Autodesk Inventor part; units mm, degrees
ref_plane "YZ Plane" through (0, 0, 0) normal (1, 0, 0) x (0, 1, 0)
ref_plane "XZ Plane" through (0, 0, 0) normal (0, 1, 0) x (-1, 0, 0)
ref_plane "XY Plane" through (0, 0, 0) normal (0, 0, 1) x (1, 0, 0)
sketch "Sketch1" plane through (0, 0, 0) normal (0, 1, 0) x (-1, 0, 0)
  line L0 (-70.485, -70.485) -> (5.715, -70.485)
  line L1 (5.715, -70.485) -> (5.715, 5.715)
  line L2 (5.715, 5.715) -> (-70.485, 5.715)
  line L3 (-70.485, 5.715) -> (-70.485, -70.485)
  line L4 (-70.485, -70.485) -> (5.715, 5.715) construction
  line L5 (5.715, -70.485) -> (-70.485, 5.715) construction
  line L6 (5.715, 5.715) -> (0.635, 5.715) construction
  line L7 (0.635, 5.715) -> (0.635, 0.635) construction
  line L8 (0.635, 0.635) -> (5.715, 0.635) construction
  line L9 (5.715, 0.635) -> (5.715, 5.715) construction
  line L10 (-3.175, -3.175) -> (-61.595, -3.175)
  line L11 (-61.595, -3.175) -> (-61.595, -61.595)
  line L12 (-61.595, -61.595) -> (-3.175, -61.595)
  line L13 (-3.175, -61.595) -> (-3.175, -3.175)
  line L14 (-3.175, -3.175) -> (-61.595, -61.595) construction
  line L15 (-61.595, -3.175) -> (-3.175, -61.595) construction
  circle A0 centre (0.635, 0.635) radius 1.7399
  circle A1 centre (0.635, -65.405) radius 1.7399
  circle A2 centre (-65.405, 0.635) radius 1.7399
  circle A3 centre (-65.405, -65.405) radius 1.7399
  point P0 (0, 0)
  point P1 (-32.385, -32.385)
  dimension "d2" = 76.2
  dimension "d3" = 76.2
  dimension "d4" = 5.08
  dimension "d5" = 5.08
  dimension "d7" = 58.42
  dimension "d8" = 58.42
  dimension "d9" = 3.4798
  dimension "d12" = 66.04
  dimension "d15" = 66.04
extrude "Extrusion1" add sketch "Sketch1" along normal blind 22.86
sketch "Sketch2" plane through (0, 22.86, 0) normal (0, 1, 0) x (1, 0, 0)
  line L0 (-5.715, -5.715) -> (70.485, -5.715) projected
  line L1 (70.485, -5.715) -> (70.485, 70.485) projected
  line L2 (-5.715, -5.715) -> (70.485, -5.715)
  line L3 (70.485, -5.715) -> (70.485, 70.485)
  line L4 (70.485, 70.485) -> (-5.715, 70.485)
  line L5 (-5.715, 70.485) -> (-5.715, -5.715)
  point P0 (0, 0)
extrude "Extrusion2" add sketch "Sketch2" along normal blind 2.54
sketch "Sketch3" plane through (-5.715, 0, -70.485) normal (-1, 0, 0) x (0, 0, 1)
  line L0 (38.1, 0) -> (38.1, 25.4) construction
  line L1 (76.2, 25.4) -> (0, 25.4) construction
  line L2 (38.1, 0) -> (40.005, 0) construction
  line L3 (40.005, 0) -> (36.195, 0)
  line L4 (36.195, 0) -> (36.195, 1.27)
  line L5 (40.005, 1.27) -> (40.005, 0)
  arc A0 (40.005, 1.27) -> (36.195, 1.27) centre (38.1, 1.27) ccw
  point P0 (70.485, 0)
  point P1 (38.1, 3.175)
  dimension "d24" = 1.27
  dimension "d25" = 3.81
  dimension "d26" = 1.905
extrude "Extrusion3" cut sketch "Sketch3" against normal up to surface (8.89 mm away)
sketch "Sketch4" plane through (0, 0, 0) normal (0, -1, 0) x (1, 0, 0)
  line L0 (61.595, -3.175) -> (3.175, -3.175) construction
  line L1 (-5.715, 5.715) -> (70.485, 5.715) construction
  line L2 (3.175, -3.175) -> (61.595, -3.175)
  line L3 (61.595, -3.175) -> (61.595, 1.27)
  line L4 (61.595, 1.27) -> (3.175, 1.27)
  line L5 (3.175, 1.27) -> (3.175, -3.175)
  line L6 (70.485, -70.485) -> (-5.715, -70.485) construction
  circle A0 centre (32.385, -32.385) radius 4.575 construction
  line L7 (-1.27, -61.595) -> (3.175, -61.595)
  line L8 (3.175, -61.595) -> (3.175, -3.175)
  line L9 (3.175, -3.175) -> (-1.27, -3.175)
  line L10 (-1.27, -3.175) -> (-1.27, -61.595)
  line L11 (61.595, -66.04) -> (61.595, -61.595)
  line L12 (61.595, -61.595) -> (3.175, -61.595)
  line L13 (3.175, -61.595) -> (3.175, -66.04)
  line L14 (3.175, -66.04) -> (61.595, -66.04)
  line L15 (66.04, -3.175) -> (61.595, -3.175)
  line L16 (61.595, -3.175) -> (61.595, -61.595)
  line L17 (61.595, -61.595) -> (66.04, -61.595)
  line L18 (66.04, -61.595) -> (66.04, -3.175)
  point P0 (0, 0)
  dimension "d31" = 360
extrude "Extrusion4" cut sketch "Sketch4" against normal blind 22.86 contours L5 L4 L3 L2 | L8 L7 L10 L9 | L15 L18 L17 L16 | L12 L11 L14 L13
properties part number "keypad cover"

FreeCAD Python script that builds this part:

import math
import FreeCAD as App
import Part
import Sketcher

V = App.Vector
Q = App.Units.Quantity

doc = App.newDocument("Part")
body = doc.addObject("PartDesign::Body", "Body")

sketch1 = body.newObject("Sketcher::SketchObject", "Sketch")
sketch1.AttachmentSupport = (doc.getObject("XZ_Plane"), [""])
sketch1.MapMode = "FlatFace"
sketch1.addGeometry(Part.LineSegment(V(70.5, 5.7, 0), V(70.5, -70.5, 0)), False)
sketch1.addGeometry(Part.LineSegment(V(70.5, -70.5, 0), V(-5.7, -70.5, 0)), False)
sketch1.addGeometry(Part.LineSegment(V(-5.7, -70.5, 0), V(-5.7, 5.7, 0)), False)
sketch1.addGeometry(Part.LineSegment(V(-5.7, 5.7, 0), V(70.5, 5.7, 0)), False)
sketch1.addGeometry(Part.Circle(V(65.4, -65.4, 0), V(0, 0, 1), 1.7), False)
sketch1.addGeometry(Part.Circle(V(-0.6, -65.4, 0), V(0, 0, 1), 1.7), False)
sketch1.addGeometry(Part.Circle(V(65.4, 0.6, 0), V(0, 0, 1), 1.7), False)
sketch1.addGeometry(Part.LineSegment(V(61.6, -3.2, 0), V(3.2, -3.2, 0)), False)
sketch1.addGeometry(Part.LineSegment(V(3.2, -3.2, 0), V(3.2, -61.6, 0)), False)
sketch1.addGeometry(Part.LineSegment(V(3.2, -61.6, 0), V(61.6, -61.6, 0)), False)
sketch1.addGeometry(Part.LineSegment(V(61.6, -61.6, 0), V(61.6, -3.2, 0)), False)
sketch1.addGeometry(Part.Circle(V(-0.6, 0.6, 0), V(0, 0, 1), 1.7), False)
sketch1.addConstraint(Sketcher.Constraint("Coincident", 0, 2, 1, 1))
sketch1.addConstraint(Sketcher.Constraint("Coincident", 1, 2, 2, 1))
sketch1.addConstraint(Sketcher.Constraint("Coincident", 2, 2, 3, 1))
sketch1.addConstraint(Sketcher.Constraint("Coincident", 3, 2, 0, 1))
sketch1.addConstraint(Sketcher.Constraint("Coincident", 7, 2, 8, 1))
sketch1.addConstraint(Sketcher.Constraint("Coincident", 8, 2, 9, 1))
sketch1.addConstraint(Sketcher.Constraint("Coincident", 9, 2, 10, 1))
sketch1.addConstraint(Sketcher.Constraint("Coincident", 10, 2, 7, 1))
sketch1.addConstraint(Sketcher.Constraint("Vertical", 0))
sketch1.addConstraint(Sketcher.Constraint("Horizontal", 1))
sketch1.addConstraint(Sketcher.Constraint("Vertical", 2))
sketch1.addConstraint(Sketcher.Constraint("Horizontal", 3))
sketch1.addConstraint(Sketcher.Constraint("Horizontal", 7))
sketch1.addConstraint(Sketcher.Constraint("Vertical", 8))
sketch1.addConstraint(Sketcher.Constraint("Horizontal", 9))
sketch1.addConstraint(Sketcher.Constraint("Vertical", 10))
sketch1.addConstraint(Sketcher.Constraint("Equal", 4, 5))
sketch1.addConstraint(Sketcher.Constraint("Equal", 5, 6))
sketch1.addConstraint(Sketcher.Constraint("Equal", 6, 11))
sketch1.addConstraint(Sketcher.Constraint("Horizontal", 4, 3, 5, 3))
sketch1.addConstraint(Sketcher.Constraint("Horizontal", 6, 3, 11, 3))
sketch1.addConstraint(Sketcher.Constraint("Vertical", 4, 3, 6, 3))
sketch1.addConstraint(Sketcher.Constraint("Vertical", 5, 3, 11, 3))
sketch1.addConstraint(Sketcher.Constraint("Equal", 3, 0))
sketch1.addConstraint(Sketcher.Constraint("Equal", 9, 8))
sketch1.addConstraint(Sketcher.Constraint("DistanceX", 1, 2, 1, 1, Q("3 in")))
sketch1.addConstraint(Sketcher.Constraint("Diameter", 4, Q("0.137 in")))
sketch1.addConstraint(Sketcher.Constraint("DistanceX", 7, 2, 7, 1, Q("2.3 in")))
sketch1.addConstraint(Sketcher.Constraint("DistanceX", 5, 3, 4, 3, Q("2.6 in")))
sketch1.addConstraint(Sketcher.Constraint("DistanceY", 4, 3, 6, 3, Q("2.6 in")))
sketch1.addConstraint(Sketcher.Constraint("DistanceX", 4, 3, 0, 2, Q("0.2 in")))
sketch1.addConstraint(Sketcher.Constraint("DistanceY", 0, 2, 4, 3, Q("0.2 in")))
sketch1.addConstraint(Sketcher.Constraint("DistanceX", 11, 3, 7, 2, Q("0.15 in")))
sketch1.addConstraint(Sketcher.Constraint("DistanceY", 7, 2, 11, 3, Q("0.15 in")))
sketch1.addConstraint(Sketcher.Constraint("DistanceX", -1, 1, 4, 3, Q("2.575 in")))
sketch1.addConstraint(Sketcher.Constraint("DistanceY", 4, 3, -1, 1, Q("2.575 in")))
pad1 = body.newObject("PartDesign::Pad", "Pad")
pad1.Profile = sketch1
pad1.Length = Q("0.9 in")
pad1.Reversed = True

sketch2 = body.newObject("Sketcher::SketchObject", "Sketch001")
sketch2.AttachmentSupport = (doc.getObject("XZ_Plane"), [""])
sketch2.MapMode = "FlatFace"
sketch2.AttachmentOffset = App.Placement(V(0, 0, -0.9 * 25.4), App.Rotation())
sketch2.addGeometry(Part.LineSegment(V(-6, -70, 0), V(-6, 6, 0)), False)
sketch2.addGeometry(Part.LineSegment(V(-6, 6, 0), V(70, 6, 0)), False)
sketch2.addGeometry(Part.LineSegment(V(70, 6, 0), V(70, -70, 0)), False)
sketch2.addGeometry(Part.LineSegment(V(70, -70, 0), V(-6, -70, 0)), False)
sketch2.addConstraint(Sketcher.Constraint("Coincident", 0, 2, 1, 1))
sketch2.addConstraint(Sketcher.Constraint("Coincident", 1, 2, 2, 1))
sketch2.addConstraint(Sketcher.Constraint("Coincident", 2, 2, 3, 1))
sketch2.addConstraint(Sketcher.Constraint("Coincident", 3, 2, 0, 1))
sketch2.addConstraint(Sketcher.Constraint("Vertical", 0))
sketch2.addConstraint(Sketcher.Constraint("Horizontal", 1))
sketch2.addConstraint(Sketcher.Constraint("Vertical", 2))
sketch2.addConstraint(Sketcher.Constraint("Horizontal", 3))
sketch2.addConstraint(Sketcher.Constraint("Equal", 3, 0))
sketch2.addConstraint(Sketcher.Constraint("DistanceX", 1, 1, 1, 2, Q("3 in")))
sketch2.addConstraint(Sketcher.Constraint("DistanceX", 0, 2, -1, 1, Q("0.225 in")))
sketch2.addConstraint(Sketcher.Constraint("DistanceY", -1, 1, 0, 2, Q("0.225 in")))
pad2 = body.newObject("PartDesign::Pad", "Pad001")
pad2.Profile = sketch2
pad2.Length = Q("0.1 in")
pad2.Reversed = True

sketch3 = body.newObject("Sketcher::SketchObject", "Sketch002")
sketch3.AttachmentSupport = (doc.getObject("YZ_Plane"), [""])
sketch3.MapMode = "FlatFace"
sketch3.AttachmentOffset = App.Placement(V(0, 0, -0.225 * 25.4), App.Rotation())
sketch3.addGeometry(Part.LineSegment(V(0, -34.3, 0), V(0, -30.5, 0)), False)
sketch3.addGeometry(Part.LineSegment(V(0, -30.5, 0), V(1.3, -30.5, 0)), False)
sketch3.addGeometry(Part.ArcOfCircle(Part.Circle(V(1.3, -32.4, 0), V(0, 0, 1), 1.9), math.radians(-90), math.radians(90)), False)
sketch3.addGeometry(Part.LineSegment(V(1.3, -34.3, 0), V(0, -34.3, 0)), False)
sketch3.addConstraint(Sketcher.Constraint("Coincident", 0, 2, 1, 1))
sketch3.addConstraint(Sketcher.Constraint("Tangent", 1, 2, 2, 2))
sketch3.addConstraint(Sketcher.Constraint("Tangent", 2, 1, 3, 1))
sketch3.addConstraint(Sketcher.Constraint("Coincident", 3, 2, 0, 1))
sketch3.addConstraint(Sketcher.Constraint("Vertical", 0))
sketch3.addConstraint(Sketcher.Constraint("Horizontal", 1))
sketch3.addConstraint(Sketcher.Constraint("Horizontal", 3))
sketch3.addConstraint(Sketcher.Constraint("PointOnObject", 0, 2, -2))
sketch3.addConstraint(Sketcher.Constraint("Radius", 2, Q("0.075 in")))
sketch3.addConstraint(Sketcher.Constraint("DistanceX", 1, 1, 1, 2, Q("0.05 in")))
sketch3.addConstraint(Sketcher.Constraint("DistanceY", 0, 2, -1, 1, Q("1.2 in")))
pocket1 = body.newObject("PartDesign::Pocket", "Pocket")
pocket1.Profile = sketch3
pocket1.Length = Q("0.35 in")
pocket1.Reversed = True

sketch4 = body.newObject("Sketcher::SketchObject", "Sketch003")
sketch4.AttachmentSupport = (doc.getObject("XZ_Plane"), [""])
sketch4.MapMode = "FlatFace"
sketch4.addGeometry(Part.LineSegment(V(3.2, 1.3, 0), V(3.2, -3.2, 0)), False)
sketch4.addGeometry(Part.LineSegment(V(3.2, -3.2, 0), V(61.6, -3.2, 0)), False)
sketch4.addGeometry(Part.LineSegment(V(61.6, -3.2, 0), V(61.6, 1.3, 0)), False)
sketch4.addGeometry(Part.LineSegment(V(61.6, 1.3, 0), V(3.2, 1.3, 0)), False)
sketch4.addGeometry(Part.LineSegment(V(3.2, -61.6, 0), V(3.2, -3.2, 0)), False)
sketch4.addGeometry(Part.LineSegment(V(3.2, -3.2, 0), V(-1.3, -3.2, 0)), False)
sketch4.addGeometry(Part.LineSegment(V(-1.3, -3.2, 0), V(-1.3, -61.6, 0)), False)
sketch4.addGeometry(Part.LineSegment(V(-1.3, -61.6, 0), V(3.2, -61.6, 0)), False)
sketch4.addGeometry(Part.LineSegment(V(66, -3.2, 0), V(61.6, -3.2, 0)), False)
sketch4.addGeometry(Part.LineSegment(V(61.6, -3.2, 0), V(61.6, -61.6, 0)), False)
sketch4.addGeometry(Part.LineSegment(V(61.6, -61.6, 0), V(66, -61.6, 0)), False)
sketch4.addGeometry(Part.LineSegment(V(66, -61.6, 0), V(66, -3.2, 0)), False)
sketch4.addGeometry(Part.LineSegment(V(61.6, -61.6, 0), V(3.2, -61.6, 0)), False)
sketch4.addGeometry(Part.LineSegment(V(3.2, -61.6, 0), V(3.2, -66, 0)), False)
sketch4.addGeometry(Part.LineSegment(V(3.2, -66, 0), V(61.6, -66, 0)), False)
sketch4.addGeometry(Part.LineSegment(V(61.6, -66, 0), V(61.6, -61.6, 0)), False)
sketch4.addConstraint(Sketcher.Constraint("Coincident", 0, 2, 1, 1))
sketch4.addConstraint(Sketcher.Constraint("Coincident", 1, 2, 2, 1))
sketch4.addConstraint(Sketcher.Constraint("Coincident", 2, 2, 3, 1))
sketch4.addConstraint(Sketcher.Constraint("Coincident", 3, 2, 0, 1))
sketch4.addConstraint(Sketcher.Constraint("Coincident", 4, 2, 5, 1))
sketch4.addConstraint(Sketcher.Constraint("Coincident", 5, 2, 6, 1))
sketch4.addConstraint(Sketcher.Constraint("Coincident", 6, 2, 7, 1))
sketch4.addConstraint(Sketcher.Constraint("Coincident", 7, 2, 4, 1))
sketch4.addConstraint(Sketcher.Constraint("Coincident", 8, 2, 9, 1))
sketch4.addConstraint(Sketcher.Constraint("Coincident", 9, 2, 10, 1))
sketch4.addConstraint(Sketcher.Constraint("Coincident", 10, 2, 11, 1))
sketch4.addConstraint(Sketcher.Constraint("Coincident", 11, 2, 8, 1))
sketch4.addConstraint(Sketcher.Constraint("Coincident", 12, 2, 13, 1))
sketch4.addConstraint(Sketcher.Constraint("Coincident", 13, 2, 14, 1))
sketch4.addConstraint(Sketcher.Constraint("Coincident", 14, 2, 15, 1))
sketch4.addConstraint(Sketcher.Constraint("Coincident", 15, 2, 12, 1))
sketch4.addConstraint(Sketcher.Constraint("Vertical", 0))
sketch4.addConstraint(Sketcher.Constraint("Horizontal", 1))
sketch4.addConstraint(Sketcher.Constraint("Vertical", 2))
sketch4.addConstraint(Sketcher.Constraint("Horizontal", 3))
sketch4.addConstraint(Sketcher.Constraint("Vertical", 4))
sketch4.addConstraint(Sketcher.Constraint("Horizontal", 5))
sketch4.addConstraint(Sketcher.Constraint("Vertical", 6))
sketch4.addConstraint(Sketcher.Constraint("Horizontal", 7))
sketch4.addConstraint(Sketcher.Constraint("Horizontal", 8))
sketch4.addConstraint(Sketcher.Constraint("Vertical", 9))
sketch4.addConstraint(Sketcher.Constraint("Horizontal", 10))
sketch4.addConstraint(Sketcher.Constraint("Vertical", 11))
sketch4.addConstraint(Sketcher.Constraint("Horizontal", 12))
sketch4.addConstraint(Sketcher.Constraint("Vertical", 13))
sketch4.addConstraint(Sketcher.Constraint("Horizontal", 14))
sketch4.addConstraint(Sketcher.Constraint("Vertical", 15))
sketch4.addConstraint(Sketcher.Constraint("Coincident", 4, 2, 0, 2))
sketch4.addConstraint(Sketcher.Constraint("Coincident", 8, 2, 1, 2))
sketch4.addConstraint(Sketcher.Constraint("Coincident", 12, 2, 7, 2))
sketch4.addConstraint(Sketcher.Constraint("Coincident", 15, 2, 9, 2))
sketch4.addConstraint(Sketcher.Constraint("Equal", 7, 8))
sketch4.addConstraint(Sketcher.Constraint("Equal", 10, 0))
sketch4.addConstraint(Sketcher.Constraint("Equal", 14, 4))
sketch4.addConstraint(Sketcher.Constraint("Equal", 2, 13))
sketch4.addConstraint(Sketcher.Constraint("DistanceX", 1, 1, 1, 2, Q("2.3 in")))
sketch4.addConstraint(Sketcher.Constraint("DistanceX", -1, 1, 10, 2, Q("2.6 in")))
sketch4.addConstraint(Sketcher.Constraint("DistanceY", 13, 2, -1, 1, Q("2.6 in")))
sketch4.addConstraint(Sketcher.Constraint("DistanceX", 5, 2, 5, 1, Q("0.175 in")))
pocket2 = body.newObject("PartDesign::Pocket", "Pocket001")
pocket2.Profile = sketch4
pocket2.Length = Q("0.9 in")

doc.recompute()
